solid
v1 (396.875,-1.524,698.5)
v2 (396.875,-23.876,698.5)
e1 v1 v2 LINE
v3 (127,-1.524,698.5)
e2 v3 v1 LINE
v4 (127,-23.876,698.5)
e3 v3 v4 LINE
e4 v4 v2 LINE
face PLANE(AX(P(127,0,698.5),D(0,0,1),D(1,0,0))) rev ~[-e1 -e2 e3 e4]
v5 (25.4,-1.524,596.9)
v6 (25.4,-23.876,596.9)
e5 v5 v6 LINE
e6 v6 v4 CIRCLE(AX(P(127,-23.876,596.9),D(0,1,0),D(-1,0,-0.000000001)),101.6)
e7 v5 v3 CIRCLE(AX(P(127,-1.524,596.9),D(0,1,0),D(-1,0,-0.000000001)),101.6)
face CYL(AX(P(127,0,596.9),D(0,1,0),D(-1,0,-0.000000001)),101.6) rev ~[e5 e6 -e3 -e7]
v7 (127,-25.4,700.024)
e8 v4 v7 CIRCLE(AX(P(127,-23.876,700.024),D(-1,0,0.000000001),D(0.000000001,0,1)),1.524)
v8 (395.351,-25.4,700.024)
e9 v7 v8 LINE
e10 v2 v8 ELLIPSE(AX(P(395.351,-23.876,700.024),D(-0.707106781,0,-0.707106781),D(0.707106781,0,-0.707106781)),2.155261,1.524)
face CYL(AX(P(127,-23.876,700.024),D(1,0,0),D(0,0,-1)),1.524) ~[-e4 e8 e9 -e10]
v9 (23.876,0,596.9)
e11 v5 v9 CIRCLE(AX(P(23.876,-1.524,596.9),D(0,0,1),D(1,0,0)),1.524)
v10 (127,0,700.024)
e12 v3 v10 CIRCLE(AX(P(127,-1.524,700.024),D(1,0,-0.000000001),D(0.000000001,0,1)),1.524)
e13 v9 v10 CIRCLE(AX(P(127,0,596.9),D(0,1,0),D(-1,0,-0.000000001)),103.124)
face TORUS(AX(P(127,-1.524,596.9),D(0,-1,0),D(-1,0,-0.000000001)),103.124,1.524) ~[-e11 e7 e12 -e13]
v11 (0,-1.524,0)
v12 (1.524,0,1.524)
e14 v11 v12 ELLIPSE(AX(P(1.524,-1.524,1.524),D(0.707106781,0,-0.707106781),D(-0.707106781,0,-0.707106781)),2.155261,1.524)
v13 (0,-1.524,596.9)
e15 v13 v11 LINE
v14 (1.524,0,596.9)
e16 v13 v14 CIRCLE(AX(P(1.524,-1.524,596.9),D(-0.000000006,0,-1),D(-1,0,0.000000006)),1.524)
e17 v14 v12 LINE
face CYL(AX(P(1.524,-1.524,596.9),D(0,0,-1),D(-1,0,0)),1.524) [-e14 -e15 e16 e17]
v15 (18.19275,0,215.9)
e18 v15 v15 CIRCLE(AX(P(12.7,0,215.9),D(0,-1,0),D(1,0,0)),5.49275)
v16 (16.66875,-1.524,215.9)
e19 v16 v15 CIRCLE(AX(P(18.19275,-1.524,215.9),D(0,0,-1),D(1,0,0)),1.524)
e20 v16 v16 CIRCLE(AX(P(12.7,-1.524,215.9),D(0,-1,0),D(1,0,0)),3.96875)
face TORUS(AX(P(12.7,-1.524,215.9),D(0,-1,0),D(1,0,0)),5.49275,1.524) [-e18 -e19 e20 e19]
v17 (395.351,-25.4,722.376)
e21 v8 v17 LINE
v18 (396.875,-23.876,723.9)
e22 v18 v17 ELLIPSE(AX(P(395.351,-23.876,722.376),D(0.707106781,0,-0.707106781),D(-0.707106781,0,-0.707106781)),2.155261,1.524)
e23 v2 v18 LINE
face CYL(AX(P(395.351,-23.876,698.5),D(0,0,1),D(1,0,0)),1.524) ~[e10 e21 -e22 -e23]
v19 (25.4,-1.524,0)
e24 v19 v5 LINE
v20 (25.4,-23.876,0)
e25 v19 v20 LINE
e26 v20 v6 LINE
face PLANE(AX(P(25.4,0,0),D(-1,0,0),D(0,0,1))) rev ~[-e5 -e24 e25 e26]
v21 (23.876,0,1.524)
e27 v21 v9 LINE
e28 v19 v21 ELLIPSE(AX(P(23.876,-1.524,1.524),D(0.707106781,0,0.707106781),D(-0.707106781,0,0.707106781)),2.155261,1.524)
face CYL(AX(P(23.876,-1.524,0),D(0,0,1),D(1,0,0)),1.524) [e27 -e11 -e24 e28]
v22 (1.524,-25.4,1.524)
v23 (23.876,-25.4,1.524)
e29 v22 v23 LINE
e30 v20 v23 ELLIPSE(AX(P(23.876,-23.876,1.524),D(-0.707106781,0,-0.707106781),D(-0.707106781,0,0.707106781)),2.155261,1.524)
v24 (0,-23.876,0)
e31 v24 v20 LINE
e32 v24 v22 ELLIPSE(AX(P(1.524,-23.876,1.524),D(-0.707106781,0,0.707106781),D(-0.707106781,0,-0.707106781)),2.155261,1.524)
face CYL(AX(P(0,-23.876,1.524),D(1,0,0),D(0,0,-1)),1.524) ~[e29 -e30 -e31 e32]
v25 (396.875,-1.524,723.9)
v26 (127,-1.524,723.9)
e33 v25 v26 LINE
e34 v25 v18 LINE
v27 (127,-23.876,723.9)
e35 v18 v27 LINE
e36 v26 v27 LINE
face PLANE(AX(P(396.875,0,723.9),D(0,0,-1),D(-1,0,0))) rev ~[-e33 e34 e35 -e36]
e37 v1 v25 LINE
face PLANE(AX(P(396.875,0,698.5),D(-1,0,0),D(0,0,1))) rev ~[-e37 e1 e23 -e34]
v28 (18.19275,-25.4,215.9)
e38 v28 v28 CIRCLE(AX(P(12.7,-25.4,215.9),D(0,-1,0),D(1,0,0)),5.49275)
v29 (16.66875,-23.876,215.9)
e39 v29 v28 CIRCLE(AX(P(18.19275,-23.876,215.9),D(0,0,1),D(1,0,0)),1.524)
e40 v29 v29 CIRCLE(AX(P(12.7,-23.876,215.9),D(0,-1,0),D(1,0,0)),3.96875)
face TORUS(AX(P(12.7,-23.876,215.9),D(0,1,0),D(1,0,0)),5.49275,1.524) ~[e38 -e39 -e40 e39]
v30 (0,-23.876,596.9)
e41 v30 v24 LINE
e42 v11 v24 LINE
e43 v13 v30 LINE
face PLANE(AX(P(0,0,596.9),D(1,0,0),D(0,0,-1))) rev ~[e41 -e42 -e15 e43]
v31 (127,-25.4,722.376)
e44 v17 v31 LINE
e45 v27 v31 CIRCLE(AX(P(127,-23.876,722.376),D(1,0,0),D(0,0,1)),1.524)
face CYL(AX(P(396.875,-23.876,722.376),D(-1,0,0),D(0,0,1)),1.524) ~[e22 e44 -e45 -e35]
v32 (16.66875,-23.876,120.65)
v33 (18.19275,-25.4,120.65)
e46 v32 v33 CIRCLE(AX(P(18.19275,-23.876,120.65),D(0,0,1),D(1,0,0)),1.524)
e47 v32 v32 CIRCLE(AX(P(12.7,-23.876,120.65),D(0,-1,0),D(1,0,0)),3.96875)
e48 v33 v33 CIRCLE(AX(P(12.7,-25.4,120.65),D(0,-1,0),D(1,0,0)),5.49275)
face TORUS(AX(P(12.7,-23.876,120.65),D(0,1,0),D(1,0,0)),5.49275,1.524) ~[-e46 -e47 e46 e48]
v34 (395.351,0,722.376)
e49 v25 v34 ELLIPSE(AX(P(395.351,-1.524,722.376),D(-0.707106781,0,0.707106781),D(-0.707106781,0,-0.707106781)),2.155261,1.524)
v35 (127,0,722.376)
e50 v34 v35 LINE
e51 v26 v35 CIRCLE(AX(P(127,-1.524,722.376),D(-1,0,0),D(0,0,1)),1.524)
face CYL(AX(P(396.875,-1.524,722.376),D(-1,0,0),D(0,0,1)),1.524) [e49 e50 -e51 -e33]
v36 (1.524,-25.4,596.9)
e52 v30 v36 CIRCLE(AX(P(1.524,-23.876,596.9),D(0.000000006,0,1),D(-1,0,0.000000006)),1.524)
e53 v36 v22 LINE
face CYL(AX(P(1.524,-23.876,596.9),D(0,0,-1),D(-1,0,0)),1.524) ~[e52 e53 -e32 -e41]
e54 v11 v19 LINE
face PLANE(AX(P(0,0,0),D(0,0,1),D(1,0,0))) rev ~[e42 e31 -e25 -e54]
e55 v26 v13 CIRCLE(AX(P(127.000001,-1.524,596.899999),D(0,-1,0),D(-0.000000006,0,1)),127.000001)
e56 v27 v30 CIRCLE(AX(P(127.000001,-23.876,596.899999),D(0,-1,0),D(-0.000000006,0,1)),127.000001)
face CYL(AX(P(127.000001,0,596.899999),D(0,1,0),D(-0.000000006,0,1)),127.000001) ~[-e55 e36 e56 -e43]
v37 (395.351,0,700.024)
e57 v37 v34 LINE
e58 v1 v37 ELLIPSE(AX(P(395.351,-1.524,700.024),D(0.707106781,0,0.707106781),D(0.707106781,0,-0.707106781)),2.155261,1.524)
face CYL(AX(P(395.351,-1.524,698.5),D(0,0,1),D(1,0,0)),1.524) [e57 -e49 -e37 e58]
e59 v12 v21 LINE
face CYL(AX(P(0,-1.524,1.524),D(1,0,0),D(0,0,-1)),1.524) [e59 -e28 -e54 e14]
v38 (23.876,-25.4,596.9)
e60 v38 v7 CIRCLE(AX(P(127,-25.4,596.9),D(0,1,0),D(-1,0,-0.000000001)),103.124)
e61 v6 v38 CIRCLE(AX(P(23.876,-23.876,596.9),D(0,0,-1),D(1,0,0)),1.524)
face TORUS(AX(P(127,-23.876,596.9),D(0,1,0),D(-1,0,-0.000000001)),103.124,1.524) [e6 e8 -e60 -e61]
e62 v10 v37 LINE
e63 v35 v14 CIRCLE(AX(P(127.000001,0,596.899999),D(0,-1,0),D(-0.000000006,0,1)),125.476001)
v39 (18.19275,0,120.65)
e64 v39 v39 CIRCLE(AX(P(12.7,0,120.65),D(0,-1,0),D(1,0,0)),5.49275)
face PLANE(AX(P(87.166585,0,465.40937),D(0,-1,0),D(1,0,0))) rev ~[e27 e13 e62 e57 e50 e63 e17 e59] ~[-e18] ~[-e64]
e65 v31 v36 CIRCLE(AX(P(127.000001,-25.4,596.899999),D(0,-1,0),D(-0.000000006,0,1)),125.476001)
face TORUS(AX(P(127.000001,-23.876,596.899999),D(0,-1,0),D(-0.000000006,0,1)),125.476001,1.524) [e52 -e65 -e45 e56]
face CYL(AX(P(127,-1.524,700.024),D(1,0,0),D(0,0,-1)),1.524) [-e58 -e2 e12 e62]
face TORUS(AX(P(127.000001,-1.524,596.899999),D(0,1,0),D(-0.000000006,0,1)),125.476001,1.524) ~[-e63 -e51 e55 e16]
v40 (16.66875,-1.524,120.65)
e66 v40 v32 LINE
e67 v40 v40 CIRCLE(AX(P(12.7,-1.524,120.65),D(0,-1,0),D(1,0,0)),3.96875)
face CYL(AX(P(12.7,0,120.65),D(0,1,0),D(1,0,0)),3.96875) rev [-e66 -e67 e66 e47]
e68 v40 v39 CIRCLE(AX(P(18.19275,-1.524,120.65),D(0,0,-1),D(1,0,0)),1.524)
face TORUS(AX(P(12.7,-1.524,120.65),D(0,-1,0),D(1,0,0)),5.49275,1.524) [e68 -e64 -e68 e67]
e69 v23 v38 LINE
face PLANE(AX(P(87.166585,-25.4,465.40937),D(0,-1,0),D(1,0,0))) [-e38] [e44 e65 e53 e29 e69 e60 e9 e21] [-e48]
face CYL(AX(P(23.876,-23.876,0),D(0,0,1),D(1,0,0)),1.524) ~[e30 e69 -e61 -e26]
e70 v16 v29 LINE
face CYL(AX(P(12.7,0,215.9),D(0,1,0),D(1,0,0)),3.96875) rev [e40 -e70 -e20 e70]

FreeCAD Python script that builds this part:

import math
import FreeCAD as App
import Part
import Sketcher

V = App.Vector
Q = App.Units.Quantity


def edges_at(feature, points):
    """Names of the edges that pass closest to the given points."""
    edges = feature.Shape.Edges
    near = lambda p: min(range(len(edges)), key=lambda i: edges[i].distToShape(Part.Vertex(*p))[0])
    return sorted({f"Edge{near(p) + 1}" for p in points})

doc = App.newDocument("Part")
params = doc.addObject("Spreadsheet::Sheet", "Params")
for row, (alias, value) in enumerate([
    ("sketch1_radius", "4 in"),
    ("sketch1_radius2", "5 in"),
    ("sketch1_diameter", "0.3125 in"),
    ("sketch1_height", "23.5 in"),
    ("sketch1_width", "10.625 in"),
    ("pad1_length", "1 in"),
    ("fillet_radius", "0.06 in"),
], start=1):
    params.set(f"A{row}", alias)
    params.set(f"B{row}", "=" + value)
    params.setAlias(f"B{row}", alias)

body = doc.addObject("PartDesign::Body", "Body")

sketch1 = doc.addObject("Sketcher::SketchObject", "Sketch")
body.addObject(sketch1)
sketch1.AttachmentSupport = (doc.XZ_Plane, [""])
sketch1.MapMode = "FlatFace"
sketch1.addGeometry(Part.LineSegment(V(0, 596.9, 0), V(0, 0, 0)), False)
sketch1.addGeometry(Part.LineSegment(V(0, 0, 0), V(25.4, 0, 0)), False)
sketch1.addGeometry(Part.LineSegment(V(25.4, 0, 0), V(25.4, 596.9, 0)), False)
sketch1.addGeometry(Part.ArcOfCircle(Part.Circle(V(127, 596.9, 0), V(0, 0, 1), 101.6), math.radians(90), math.radians(180)), False)
sketch1.addGeometry(Part.LineSegment(V(127, 698.5, 0), V(396.9, 698.5, 0)), False)
sketch1.addGeometry(Part.LineSegment(V(396.9, 698.5, 0), V(396.9, 723.9, 0)), False)
sketch1.addGeometry(Part.LineSegment(V(396.9, 723.9, 0), V(127, 723.9, 0)), False)
sketch1.addGeometry(Part.ArcOfCircle(Part.Circle(V(127, 596.9, 0), V(0, 0, 1), 127), math.radians(90), math.radians(180)), False)
sketch1.addGeometry(Part.Circle(V(12.7, 120.7, 0), V(0, 0, 1), 4), False)
sketch1.addGeometry(Part.Circle(V(12.7, 215.9, 0), V(0, 0, 1), 4), False)
sketch1.addConstraint(Sketcher.Constraint("Coincident", 0, 2, 1, 1))
sketch1.addConstraint(Sketcher.Constraint("Coincident", 1, 2, 2, 1))
sketch1.addConstraint(Sketcher.Constraint("Tangent", 2, 2, 3, 2))
sketch1.addConstraint(Sketcher.Constraint("Tangent", 3, 1, 4, 1))
sketch1.addConstraint(Sketcher.Constraint("Coincident", 4, 2, 5, 1))
sketch1.addConstraint(Sketcher.Constraint("Coincident", 5, 2, 6, 1))
sketch1.addConstraint(Sketcher.Constraint("Tangent", 6, 2, 7, 1))
sketch1.addConstraint(Sketcher.Constraint("Tangent", 7, 2, 0, 1))
sketch1.addConstraint(Sketcher.Constraint("Vertical", 0))
sketch1.addConstraint(Sketcher.Constraint("Horizontal", 1))
sketch1.addConstraint(Sketcher.Constraint("Vertical", 2))
sketch1.addConstraint(Sketcher.Constraint("Horizontal", 4))
sketch1.addConstraint(Sketcher.Constraint("Vertical", 5))
sketch1.addConstraint(Sketcher.Constraint("Horizontal", 6))
sketch1.addConstraint(Sketcher.Constraint("Coincident", 0, 2, -1, 1))
sketch1.addConstraint(Sketcher.Constraint("Coincident", 7, 3, 3, 3))
sketch1.addConstraint(Sketcher.Constraint("Equal", 8, 9))
sketch1.addConstraint(Sketcher.Constraint("Vertical", 8, 3, 9, 3))
sketch1.addConstraint(Sketcher.Constraint("Radius", 3, Q("4 in")))
sketch1.addConstraint(Sketcher.Constraint("Radius", 7, Q("5 in")))
sketch1.addConstraint(Sketcher.Constraint("Diameter", 8, Q("0.3125 in")))
sketch1.addConstraint(Sketcher.Constraint("DistanceY", 0, 2, 0, 1, Q("23.5 in")))
sketch1.addConstraint(Sketcher.Constraint("DistanceY", 9, 3, 7, 3, Q("15 in")))
sketch1.addConstraint(Sketcher.Constraint("DistanceX", -1, 1, 8, 3, Q("0.5 in")))
sketch1.addConstraint(Sketcher.Constraint("DistanceX", 4, 1, 4, 2, Q("10.625 in")))
sketch1.addConstraint(Sketcher.Constraint("DistanceY", -1, 1, 8, 3, Q("4.75 in")))
sketch1.setExpression("Constraints[18]", "Params.sketch1_radius")
sketch1.setExpression("Constraints[19]", "Params.sketch1_radius2")
sketch1.setExpression("Constraints[20]", "Params.sketch1_diameter")
sketch1.setExpression("Constraints[21]", "Params.sketch1_height")
sketch1.setExpression("Constraints[24]", "Params.sketch1_width")
pad1 = doc.addObject("PartDesign::Pad", "Pad")
body.addObject(pad1)
pad1.Profile = sketch1
pad1.setExpression("Length", "Params.pad1_length")
doc.recompute()

fillet = doc.addObject("PartDesign::Fillet", "Fillet")
body.addObject(fillet)
fillet.Base = (pad1, edges_at(pad1, [
    (25.4, -25.4, 298.45),
    (0, -25.4, 298.45),
    (0, 0, 298.45),
    (25.4, 0, 298.45),
    (12.7, 0, 0),
    (55.158, 0, 668.742),
    (261.938, 0, 698.5),
    (396.875, 0, 711.2),
    (261.938, 0, 723.9),
    (37.197, 0, 686.703),
    (8.731, 0, 120.65),
    (8.731, 0, 215.9),
    (12.7, -25.4, 0),
    (55.158, -25.4, 668.742),
    (261.938, -25.4, 698.5),
    (396.875, -25.4, 711.2),
    (261.938, -25.4, 723.9),
    (37.197, -25.4, 686.703),
    (8.731, -25.4, 120.65),
    (8.731, -25.4, 215.9),
]))
fillet.setExpression("Radius", "Params.fillet_radius")

doc.recompute()
